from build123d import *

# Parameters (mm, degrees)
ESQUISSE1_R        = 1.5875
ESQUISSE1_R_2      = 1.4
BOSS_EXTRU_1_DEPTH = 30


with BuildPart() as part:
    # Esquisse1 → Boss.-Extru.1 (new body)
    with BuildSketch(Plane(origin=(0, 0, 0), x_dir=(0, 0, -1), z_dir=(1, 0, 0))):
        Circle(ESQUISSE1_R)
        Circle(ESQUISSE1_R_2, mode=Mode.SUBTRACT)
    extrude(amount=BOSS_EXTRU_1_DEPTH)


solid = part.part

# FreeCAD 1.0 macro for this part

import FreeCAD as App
import Part
import Sketcher

V = App.Vector
Q = App.Units.Quantity

doc = App.newDocument("Part")
body = doc.addObject("PartDesign::Body", "Body")

sketch1 = body.newObject("Sketcher::SketchObject", "Sketch")
sketch1.AttachmentSupport = (doc.getObject("YZ_Plane"), [""])
sketch1.MapMode = "FlatFace"
sketch1.addGeometry(Part.Circle(V(0, 0, 0), V(0, 0, 1), 1.6), False)
sketch1.addGeometry(Part.Circle(V(0, 0, 0), V(0, 0, 1), 1.4), False)
sketch1.addConstraint(Sketcher.Constraint("Coincident", 0, 3, -1, 1))
sketch1.addConstraint(Sketcher.Constraint("Coincident", 1, 3, -1, 1))
sketch1.addConstraint(Sketcher.Constraint("Diameter", 1, Q("2.8 mm")))
sketch1.addConstraint(Sketcher.Constraint("Diameter", 0, Q("3.175 mm")))
pad1 = body.newObject("PartDesign::Pad", "Pad")
pad1.Profile = sketch1
pad1.Length = 30

doc.recompute()
